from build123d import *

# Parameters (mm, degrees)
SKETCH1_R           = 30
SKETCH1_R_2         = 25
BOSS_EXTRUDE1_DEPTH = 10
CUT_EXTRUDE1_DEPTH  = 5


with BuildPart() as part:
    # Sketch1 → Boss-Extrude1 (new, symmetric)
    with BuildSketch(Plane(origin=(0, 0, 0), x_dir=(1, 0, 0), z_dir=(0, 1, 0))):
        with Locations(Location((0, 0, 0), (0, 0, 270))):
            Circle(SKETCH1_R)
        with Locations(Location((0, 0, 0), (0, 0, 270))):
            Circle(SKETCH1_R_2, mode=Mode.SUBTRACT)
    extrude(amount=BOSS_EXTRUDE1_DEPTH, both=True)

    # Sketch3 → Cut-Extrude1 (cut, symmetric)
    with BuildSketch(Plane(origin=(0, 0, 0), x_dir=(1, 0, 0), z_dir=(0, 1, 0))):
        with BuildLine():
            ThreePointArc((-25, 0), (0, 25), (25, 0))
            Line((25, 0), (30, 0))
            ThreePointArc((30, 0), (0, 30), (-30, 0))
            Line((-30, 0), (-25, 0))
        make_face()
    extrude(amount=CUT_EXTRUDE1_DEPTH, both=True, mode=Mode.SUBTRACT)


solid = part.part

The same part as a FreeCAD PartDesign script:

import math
import FreeCAD as App
import Part
import Sketcher

doc = App.newDocument("Part")
params = doc.addObject("Spreadsheet::Sheet", "Params")
for row, (alias, value) in enumerate([
    ("sketch1_diameter", "60 mm"),
    ("sketch1_diameter2", "50 mm"),
    ("pad1_length", "20 mm"),
    ("sketch2_radius", "25 mm"),
    ("sketch2_radius2", "30 mm"),
    ("pocket1_length", "10 mm"),
], start=1):
    params.set(f"A{row}", alias)
    params.set(f"B{row}", "=" + value)
    params.setAlias(f"B{row}", alias)

body = doc.addObject("PartDesign::Body", "Body")

# Sketch on XZ plane
sketch1 = body.newObject("Sketcher::SketchObject", "Sketch")
sketch1.AttachmentSupport = (doc.getObject("XZ_Plane"), [""])
sketch1.MapMode = "FlatFace"
sketch1.addGeometry([
    Part.Circle(App.Vector(0, 0, 0), App.Vector(0, 0, 1), 30),
    Part.Circle(App.Vector(0, 0, 0), App.Vector(0, 0, 1), 25),
], False)
sketch1.addConstraint([
    Sketcher.Constraint("Coincident", 0, 3, -1, 1),
    Sketcher.Constraint("Coincident", 1, 3, -1, 1),
    Sketcher.Constraint("Diameter", 0, 60.0),
    Sketcher.Constraint("Diameter", 1, 50.0),
])
sketch1.setExpression("Constraints[2]", "Params.sketch1_diameter")
sketch1.setExpression("Constraints[3]", "Params.sketch1_diameter2")
pad1 = body.newObject("PartDesign::Pad", "Pad")
pad1.Profile = sketch1
pad1.setExpression("Length", "Params.pad1_length")
pad1.Midplane = True

# Sketch on XZ plane
sketch2 = body.newObject("Sketcher::SketchObject", "Sketch001")
sketch2.AttachmentSupport = (doc.getObject("XZ_Plane"), [""])
sketch2.MapMode = "FlatFace"
sketch2.addGeometry([
    Part.ArcOfCircle(Part.Circle(App.Vector(0, 0, 0), App.Vector(0, 0, 1), 25), math.radians(180), math.radians(360)),
    Part.LineSegment(App.Vector(25, 0, 0), App.Vector(30, 0, 0)),
    Part.ArcOfCircle(Part.Circle(App.Vector(0, 0, 0), App.Vector(0, 0, 1), 30), math.radians(180), math.radians(360)),
    Part.LineSegment(App.Vector(-30, 0, 0), App.Vector(-25, 0, 0)),
], False)
sketch2.addConstraint([
    Sketcher.Constraint("Coincident", 0, 2, 1, 1),
    Sketcher.Constraint("Coincident", 1, 2, 2, 2),
    Sketcher.Constraint("Coincident", 2, 1, 3, 1),
    Sketcher.Constraint("Coincident", 3, 2, 0, 1),
    Sketcher.Constraint("Horizontal", 1),
    Sketcher.Constraint("Horizontal", 3),
    Sketcher.Constraint("Coincident", 0, 3, -1, 1),
    Sketcher.Constraint("Coincident", 2, 3, -1, 1),
    Sketcher.Constraint("PointOnObject", 0, 2, -1),
    Sketcher.Constraint("PointOnObject", 2, 1, -1),
    Sketcher.Constraint("Radius", 0, 25.0),
    Sketcher.Constraint("Radius", 2, 30.0),
])
sketch2.setExpression("Constraints[10]", "Params.sketch2_radius")
sketch2.setExpression("Constraints[11]", "Params.sketch2_radius2")
pocket1 = body.newObject("PartDesign::Pocket", "Pocket")
pocket1.Profile = sketch2
pocket1.setExpression("Length", "Params.pocket1_length")
pocket1.Midplane = True

doc.recompute()
